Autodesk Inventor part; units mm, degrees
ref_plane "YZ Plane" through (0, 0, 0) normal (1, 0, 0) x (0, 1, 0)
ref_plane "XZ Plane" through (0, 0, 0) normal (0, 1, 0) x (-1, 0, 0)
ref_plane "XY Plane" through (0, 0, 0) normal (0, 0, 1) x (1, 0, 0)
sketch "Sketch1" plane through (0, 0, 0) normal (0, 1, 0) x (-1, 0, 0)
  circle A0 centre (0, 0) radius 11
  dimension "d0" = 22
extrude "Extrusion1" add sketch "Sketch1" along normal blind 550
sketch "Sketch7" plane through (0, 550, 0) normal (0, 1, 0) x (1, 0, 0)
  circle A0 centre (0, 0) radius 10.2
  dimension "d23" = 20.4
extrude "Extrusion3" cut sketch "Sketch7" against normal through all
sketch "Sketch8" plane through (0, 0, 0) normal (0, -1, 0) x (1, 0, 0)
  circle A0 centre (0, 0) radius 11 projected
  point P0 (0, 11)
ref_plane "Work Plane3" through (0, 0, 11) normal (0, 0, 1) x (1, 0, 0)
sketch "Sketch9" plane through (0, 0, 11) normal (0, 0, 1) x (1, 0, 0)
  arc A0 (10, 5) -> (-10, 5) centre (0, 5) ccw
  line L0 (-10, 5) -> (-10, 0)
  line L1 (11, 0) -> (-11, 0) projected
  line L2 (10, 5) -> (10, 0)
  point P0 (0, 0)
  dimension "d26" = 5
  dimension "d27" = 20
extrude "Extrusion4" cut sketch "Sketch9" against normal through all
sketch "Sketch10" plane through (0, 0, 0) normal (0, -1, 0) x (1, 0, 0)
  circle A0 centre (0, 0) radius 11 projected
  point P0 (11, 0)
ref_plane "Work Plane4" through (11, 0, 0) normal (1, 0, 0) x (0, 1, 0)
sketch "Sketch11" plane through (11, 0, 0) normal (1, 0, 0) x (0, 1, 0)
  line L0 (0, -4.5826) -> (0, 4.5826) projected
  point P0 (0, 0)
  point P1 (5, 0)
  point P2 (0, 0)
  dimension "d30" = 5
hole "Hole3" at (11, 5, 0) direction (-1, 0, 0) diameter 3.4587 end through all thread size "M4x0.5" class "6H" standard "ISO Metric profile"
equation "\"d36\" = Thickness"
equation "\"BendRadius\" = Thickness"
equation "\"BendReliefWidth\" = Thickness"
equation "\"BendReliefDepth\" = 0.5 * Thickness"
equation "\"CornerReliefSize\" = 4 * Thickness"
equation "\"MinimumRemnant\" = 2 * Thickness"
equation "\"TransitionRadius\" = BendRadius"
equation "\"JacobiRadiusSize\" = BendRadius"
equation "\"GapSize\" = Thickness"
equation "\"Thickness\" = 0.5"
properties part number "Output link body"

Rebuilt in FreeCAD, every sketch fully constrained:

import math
import FreeCAD as App
import Part
import Sketcher
from FreeCAD import Vector
Q = App.Units.Quantity

doc = App.newDocument("Part")
body = doc.addObject("PartDesign::Body", "Body")

# Sketch on XZ plane
sketch1 = body.newObject("Sketcher::SketchObject", "Sketch")
sketch1.AttachmentSupport = (doc.getObject("XZ_Plane"), [""])
sketch1.MapMode = "FlatFace"
sketch1.addGeometry(Part.Circle(Vector(0, 0, 0), Vector(0, 0, 1), 11), False)
sketch1.addConstraint([
    Sketcher.Constraint("Coincident", 0, 3, -1, 1),
    Sketcher.Constraint("Diameter", 0, Q("22 mm")),
])
pad1 = body.newObject("PartDesign::Pad", "Pad")
pad1.Profile = sketch1
pad1.Length = 550
pad1.Reversed = True

# Sketch on XZ plane
sketch2 = body.newObject("Sketcher::SketchObject", "Sketch001")
sketch2.AttachmentSupport = (doc.getObject("XZ_Plane"), [""])
sketch2.MapMode = "FlatFace"
sketch2.AttachmentOffset = App.Placement(Vector(0, 0, -550), App.Rotation())
sketch2.addGeometry(Part.Circle(Vector(0, 0, 0), Vector(0, 0, 1), 10), False)
sketch2.addConstraint([
    Sketcher.Constraint("Coincident", 0, 3, -1, 1),
    Sketcher.Constraint("Diameter", 0, Q("20.4 mm")),
])
pocket1 = body.newObject("PartDesign::Pocket", "Pocket")
pocket1.Profile = sketch2
pocket1.Type = "ThroughAll"
pocket1.Reversed = True

# Sketch on XY plane
sketch3 = body.newObject("Sketcher::SketchObject", "Sketch002")
sketch3.AttachmentSupport = (doc.getObject("XY_Plane"), [""])
sketch3.MapMode = "FlatFace"
sketch3.AttachmentOffset = App.Placement(Vector(0, 0, 11), App.Rotation())
sketch3.addGeometry([
    Part.LineSegment(Vector(10, 0, 0), Vector(10, 5, 0)),
    Part.ArcOfCircle(Part.Circle(Vector(0, 5, 0), Vector(0, 0, 1), 10), math.radians(0), math.radians(180)),
    Part.LineSegment(Vector(-10, 5, 0), Vector(-10, 0, 0)),
    Part.LineSegment(Vector(-10, 0, 0), Vector(10, 0, 0)),
], False)
sketch3.addConstraint([
    Sketcher.Constraint("Tangent", 0, 2, 1, 1),
    Sketcher.Constraint("Tangent", 1, 2, 2, 1),
    Sketcher.Constraint("Coincident", 2, 2, 3, 1),
    Sketcher.Constraint("Coincident", 3, 2, 0, 1),
    Sketcher.Constraint("Vertical", 0),
    Sketcher.Constraint("Vertical", 2),
    Sketcher.Constraint("Horizontal", 3),
    Sketcher.Constraint("Symmetric", 2, 2, 3, 2, -1, 1),
    Sketcher.Constraint("Radius", 1, Q("10 mm")),
    Sketcher.Constraint("DistanceY", 0, 1, 0, 2, Q("5 mm")),
])
pocket2 = body.newObject("PartDesign::Pocket", "Pocket001")
pocket2.Profile = sketch3
pocket2.Type = "ThroughAll"

# Sketch on YZ plane
sketch4 = body.newObject("Sketcher::SketchObject", "Sketch003")
sketch4.AttachmentSupport = (doc.getObject("YZ_Plane"), [""])
sketch4.MapMode = "FlatFace"
sketch4.AttachmentOffset = App.Placement(Vector(0, 0, 11), App.Rotation())
sketch4.addGeometry(Part.Circle(Vector(5, 0, 0), Vector(0, 0, 1), 1.7), False)
sketch4.addConstraint([
    Sketcher.Constraint("PointOnObject", 0, 3, -1),
    Sketcher.Constraint("DistanceX", -1, 1, 0, 3, Q("5 mm")),
    Sketcher.Constraint("Diameter", 0, Q("3.4587 mm")),
])
doc.recompute()
hole = body.newObject("PartDesign::Hole", "Hole")
hole.Profile = sketch4
hole.ThreadType = "None"
hole.Diameter = 3.4587
hole.DepthType = "ThroughAll"

doc.recompute()
